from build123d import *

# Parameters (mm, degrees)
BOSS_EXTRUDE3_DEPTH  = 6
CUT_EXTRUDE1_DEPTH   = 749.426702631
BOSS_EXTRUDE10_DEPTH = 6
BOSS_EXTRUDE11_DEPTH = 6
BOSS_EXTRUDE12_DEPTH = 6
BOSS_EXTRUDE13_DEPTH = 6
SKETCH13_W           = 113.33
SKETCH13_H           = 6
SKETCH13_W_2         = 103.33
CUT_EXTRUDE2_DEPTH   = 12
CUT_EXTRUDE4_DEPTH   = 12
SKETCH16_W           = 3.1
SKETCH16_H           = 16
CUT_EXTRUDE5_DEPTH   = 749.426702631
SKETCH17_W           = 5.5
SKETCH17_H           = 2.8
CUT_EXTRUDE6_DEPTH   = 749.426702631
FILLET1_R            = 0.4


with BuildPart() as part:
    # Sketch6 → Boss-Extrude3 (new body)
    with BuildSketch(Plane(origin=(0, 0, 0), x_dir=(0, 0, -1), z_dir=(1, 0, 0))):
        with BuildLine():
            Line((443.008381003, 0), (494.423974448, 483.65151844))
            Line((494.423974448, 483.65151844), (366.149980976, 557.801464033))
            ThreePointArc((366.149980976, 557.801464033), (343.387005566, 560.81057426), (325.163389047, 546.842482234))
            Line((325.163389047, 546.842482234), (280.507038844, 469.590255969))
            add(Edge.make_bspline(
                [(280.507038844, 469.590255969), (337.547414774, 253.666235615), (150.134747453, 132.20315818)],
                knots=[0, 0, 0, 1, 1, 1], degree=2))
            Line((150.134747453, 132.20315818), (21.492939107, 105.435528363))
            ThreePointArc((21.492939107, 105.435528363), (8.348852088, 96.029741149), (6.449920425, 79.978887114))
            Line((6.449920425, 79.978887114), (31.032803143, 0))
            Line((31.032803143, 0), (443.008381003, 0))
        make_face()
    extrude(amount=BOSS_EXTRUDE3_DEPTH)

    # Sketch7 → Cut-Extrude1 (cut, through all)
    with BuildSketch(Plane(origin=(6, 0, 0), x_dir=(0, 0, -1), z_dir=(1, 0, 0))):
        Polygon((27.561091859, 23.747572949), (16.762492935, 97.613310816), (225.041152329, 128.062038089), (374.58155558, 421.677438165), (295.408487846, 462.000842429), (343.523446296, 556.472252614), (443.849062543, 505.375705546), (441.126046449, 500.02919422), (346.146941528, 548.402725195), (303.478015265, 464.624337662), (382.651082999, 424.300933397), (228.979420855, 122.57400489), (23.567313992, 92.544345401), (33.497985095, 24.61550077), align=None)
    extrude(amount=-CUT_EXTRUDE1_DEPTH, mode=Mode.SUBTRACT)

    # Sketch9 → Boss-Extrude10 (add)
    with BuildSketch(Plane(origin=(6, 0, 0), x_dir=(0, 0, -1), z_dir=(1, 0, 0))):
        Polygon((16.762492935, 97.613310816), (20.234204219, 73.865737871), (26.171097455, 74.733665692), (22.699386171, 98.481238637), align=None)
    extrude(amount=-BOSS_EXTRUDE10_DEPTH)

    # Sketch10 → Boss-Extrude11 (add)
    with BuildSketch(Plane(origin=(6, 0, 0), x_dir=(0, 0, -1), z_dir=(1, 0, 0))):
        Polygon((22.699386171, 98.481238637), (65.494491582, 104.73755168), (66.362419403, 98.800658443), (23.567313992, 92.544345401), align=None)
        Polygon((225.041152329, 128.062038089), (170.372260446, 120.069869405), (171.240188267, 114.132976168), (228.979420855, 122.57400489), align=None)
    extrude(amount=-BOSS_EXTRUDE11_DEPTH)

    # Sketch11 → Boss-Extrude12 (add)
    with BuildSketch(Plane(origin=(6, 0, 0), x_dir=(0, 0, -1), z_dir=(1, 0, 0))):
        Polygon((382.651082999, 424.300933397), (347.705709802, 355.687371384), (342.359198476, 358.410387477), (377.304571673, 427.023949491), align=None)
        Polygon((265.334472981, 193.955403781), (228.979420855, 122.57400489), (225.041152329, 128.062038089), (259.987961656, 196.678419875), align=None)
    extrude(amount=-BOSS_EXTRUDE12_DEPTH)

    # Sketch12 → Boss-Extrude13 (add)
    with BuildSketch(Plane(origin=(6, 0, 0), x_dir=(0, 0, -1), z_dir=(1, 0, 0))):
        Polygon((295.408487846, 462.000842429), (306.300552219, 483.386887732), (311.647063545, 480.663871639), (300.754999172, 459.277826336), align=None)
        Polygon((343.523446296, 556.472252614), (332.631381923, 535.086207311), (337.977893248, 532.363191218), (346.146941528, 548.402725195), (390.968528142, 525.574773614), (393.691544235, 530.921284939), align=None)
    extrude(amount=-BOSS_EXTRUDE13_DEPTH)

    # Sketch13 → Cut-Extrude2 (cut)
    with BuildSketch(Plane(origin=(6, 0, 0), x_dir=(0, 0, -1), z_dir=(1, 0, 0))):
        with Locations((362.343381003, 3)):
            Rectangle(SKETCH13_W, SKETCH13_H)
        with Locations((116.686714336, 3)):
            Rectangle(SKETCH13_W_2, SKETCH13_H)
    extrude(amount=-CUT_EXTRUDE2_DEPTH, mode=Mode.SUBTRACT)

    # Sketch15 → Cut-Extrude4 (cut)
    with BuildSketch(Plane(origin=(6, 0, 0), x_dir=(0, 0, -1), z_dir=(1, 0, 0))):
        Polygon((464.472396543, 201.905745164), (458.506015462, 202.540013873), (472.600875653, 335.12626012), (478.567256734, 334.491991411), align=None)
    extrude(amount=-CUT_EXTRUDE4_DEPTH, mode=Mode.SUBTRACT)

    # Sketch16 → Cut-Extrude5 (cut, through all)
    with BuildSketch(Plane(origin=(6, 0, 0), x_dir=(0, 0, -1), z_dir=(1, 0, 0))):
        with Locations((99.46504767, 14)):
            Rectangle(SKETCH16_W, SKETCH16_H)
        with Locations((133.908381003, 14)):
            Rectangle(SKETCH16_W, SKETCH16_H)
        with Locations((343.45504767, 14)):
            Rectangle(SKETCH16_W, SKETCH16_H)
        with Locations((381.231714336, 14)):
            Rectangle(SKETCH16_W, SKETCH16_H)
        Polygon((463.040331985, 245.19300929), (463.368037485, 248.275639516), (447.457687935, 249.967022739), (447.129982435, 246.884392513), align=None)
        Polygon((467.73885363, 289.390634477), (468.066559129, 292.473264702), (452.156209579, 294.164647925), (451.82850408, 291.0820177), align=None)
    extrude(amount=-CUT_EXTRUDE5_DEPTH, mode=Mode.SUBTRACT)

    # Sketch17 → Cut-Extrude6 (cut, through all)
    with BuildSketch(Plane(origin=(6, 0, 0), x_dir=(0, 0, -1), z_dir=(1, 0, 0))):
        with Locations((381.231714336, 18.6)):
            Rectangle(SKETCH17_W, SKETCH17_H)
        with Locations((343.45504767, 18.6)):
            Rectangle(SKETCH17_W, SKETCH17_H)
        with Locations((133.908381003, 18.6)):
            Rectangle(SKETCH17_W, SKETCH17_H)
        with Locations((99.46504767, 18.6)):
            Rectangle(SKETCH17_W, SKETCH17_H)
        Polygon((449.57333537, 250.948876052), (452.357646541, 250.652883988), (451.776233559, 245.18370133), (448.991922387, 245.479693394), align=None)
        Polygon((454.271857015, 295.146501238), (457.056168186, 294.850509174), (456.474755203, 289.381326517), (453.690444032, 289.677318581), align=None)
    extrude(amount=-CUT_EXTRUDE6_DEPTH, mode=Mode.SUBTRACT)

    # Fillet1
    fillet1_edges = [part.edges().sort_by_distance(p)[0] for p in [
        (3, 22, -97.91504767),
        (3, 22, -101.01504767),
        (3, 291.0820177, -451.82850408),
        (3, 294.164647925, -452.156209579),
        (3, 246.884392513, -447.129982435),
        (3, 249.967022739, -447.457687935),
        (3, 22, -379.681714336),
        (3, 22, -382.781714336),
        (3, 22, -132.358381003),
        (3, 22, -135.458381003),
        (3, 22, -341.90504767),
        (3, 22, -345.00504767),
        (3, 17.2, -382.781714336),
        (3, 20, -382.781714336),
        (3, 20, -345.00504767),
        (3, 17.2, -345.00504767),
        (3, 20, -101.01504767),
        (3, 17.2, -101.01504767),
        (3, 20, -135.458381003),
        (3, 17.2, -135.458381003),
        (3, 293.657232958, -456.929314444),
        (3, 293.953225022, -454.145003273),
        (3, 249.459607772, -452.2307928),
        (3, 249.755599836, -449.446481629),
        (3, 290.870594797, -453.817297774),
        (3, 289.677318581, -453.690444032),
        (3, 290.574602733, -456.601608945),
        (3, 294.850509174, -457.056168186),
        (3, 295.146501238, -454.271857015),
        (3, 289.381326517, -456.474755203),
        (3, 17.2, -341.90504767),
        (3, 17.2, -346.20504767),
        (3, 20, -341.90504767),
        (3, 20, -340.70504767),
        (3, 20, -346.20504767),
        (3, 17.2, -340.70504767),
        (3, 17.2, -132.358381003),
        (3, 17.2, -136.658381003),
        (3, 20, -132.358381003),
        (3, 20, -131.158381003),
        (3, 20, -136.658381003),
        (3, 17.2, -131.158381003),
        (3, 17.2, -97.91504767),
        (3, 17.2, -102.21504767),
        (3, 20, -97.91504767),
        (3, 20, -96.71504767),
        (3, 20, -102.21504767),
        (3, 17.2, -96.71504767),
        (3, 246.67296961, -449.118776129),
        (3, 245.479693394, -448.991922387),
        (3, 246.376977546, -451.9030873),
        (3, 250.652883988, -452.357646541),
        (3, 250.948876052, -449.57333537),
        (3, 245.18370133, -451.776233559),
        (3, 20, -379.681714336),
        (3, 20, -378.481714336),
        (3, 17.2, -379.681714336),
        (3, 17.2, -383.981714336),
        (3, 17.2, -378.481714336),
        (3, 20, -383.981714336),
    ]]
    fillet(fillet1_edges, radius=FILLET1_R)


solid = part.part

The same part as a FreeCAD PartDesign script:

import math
import FreeCAD as App
import Part
import Sketcher

V = App.Vector


def edges_at(feature, points):
    """Names of the edges that pass closest to the given points."""
    edges = feature.Shape.Edges
    near = lambda p: min(range(len(edges)), key=lambda i: edges[i].distToShape(Part.Vertex(*p))[0])
    return sorted({f"Edge{near(p) + 1}" for p in points})


def add_polygon(sketch, points):
    """Adds a closed chain of lines whose ends are joined by coincident constraints."""
    first, n = sketch.GeometryCount, len(points)
    for a, b in zip(points, points[1:] + points[:1]):
        sketch.addGeometry(Part.LineSegment(App.Vector(*a, 0), App.Vector(*b, 0)), False)
    for i in range(n):
        sketch.addConstraint(Sketcher.Constraint("Coincident", first + i, 2, first + (i + 1) % n, 1))

doc = App.newDocument("Part")
params = doc.addObject("Spreadsheet::Sheet", "Params")
for row, (alias, value) in enumerate([
    ("sketch1_radius", "30 mm"),
    ("sketch1_radius2", "20 mm"),
    ("pad1_length", "6 mm"),
    ("sketch2_length", "6 mm"),
    ("sketch3_length", "24 mm"),
    ("sketch3_length2", "6 mm"),
    ("pad2_length", "6 mm"),
    ("sketch4_length", "6 mm"),
    ("sketch4_length2", "43.25 mm"),
    ("sketch4_length3", "55.25 mm"),
    ("pad3_length", "6 mm"),
    ("sketch5_length", "77 mm"),
    ("sketch5_length2", "6 mm"),
    ("pad4_length", "6 mm"),
    ("sketch6_length", "24 mm"),
    ("sketch6_length2", "6 mm"),
    ("sketch6_length3", "50.3 mm"),
    ("pad5_length", "6 mm"),
    ("sketch7_width", "6 mm"),
    ("sketch7_height", "113.33 mm"),
    ("sketch7_height2", "103.33 mm"),
    ("pocket2_length", "12 mm"),
    ("sketch8_length", "6 mm"),
    ("pocket3_length", "12 mm"),
    ("sketch9_width", "16 mm"),
    ("sketch9_length", "16 mm"),
    ("sketch9_height", "3.1 mm"),
    ("sketch9_length2", "3.1 mm"),
    ("sketch10_width", "2.8 mm"),
    ("sketch10_height", "5.5 mm"),
    ("sketch10_length", "2.8 mm"),
    ("sketch10_length2", "5.5 mm"),
    ("fillet_radius", "0.4 mm"),
], start=1):
    params.set(f"A{row}", alias)
    params.set(f"B{row}", "=" + value)
    params.setAlias(f"B{row}", alias)

body = doc.addObject("PartDesign::Body", "Body")

sketch1 = body.newObject("Sketcher::SketchObject", "Sketch")
sketch1.AttachmentSupport = (doc.getObject("YZ_Plane"), [""])
sketch1.MapMode = "FlatFace"
sketch1.addGeometry([
    Part.LineSegment(V(0, -443.008381, 0), V(483.651518, -494.423974, 0)),
    Part.LineSegment(V(483.651518, -494.423974, 0), V(557.801464, -366.149981, 0)),
    Part.ArcOfCircle(Part.Circle(V(531.828677, -351.136176, 0), V(0, 0, 1), 30), math.radians(-30.030449), math.radians(59.969551)),
    Part.LineSegment(V(546.842482, -325.163389, 0), V(469.590256, -280.507039, 0)),
    Part.BSplineCurve([V(469.590256, -280.507039, 0), V(253.666236, -337.547415, 0), V(132.203158, -150.134747, 0)], [3, 3], [0, 1], False, 2, [1, 1, 1], False),
    Part.LineSegment(V(132.203158, -150.134747, 0), V(105.435528, -21.492939, 0)),
    Part.ArcOfCircle(Part.Circle(V(85.854925, -25.567247, 0), V(0, 0, 1), 20), math.radians(11.75431), math.radians(107.085709)),
    Part.LineSegment(V(79.978887, -6.44992, 0), V(0, -31.032803, 0)),
    Part.LineSegment(V(0, -31.032803, 0), V(0, -443.008381, 0)),
], False)
sketch1.addConstraint([
    Sketcher.Constraint("Block", 4),
    Sketcher.Constraint("Coincident", 0, 2, 1, 1),
    Sketcher.Constraint("Coincident", 1, 2, 2, 1),
    Sketcher.Constraint("Coincident", 2, 2, 3, 1),
    Sketcher.Constraint("Coincident", 3, 2, 4, 1),
    Sketcher.Constraint("Coincident", 4, 2, 5, 1),
    Sketcher.Constraint("Coincident", 5, 2, 6, 1),
    Sketcher.Constraint("Coincident", 6, 2, 7, 1),
    Sketcher.Constraint("Coincident", 7, 2, 8, 1),
    Sketcher.Constraint("Coincident", 8, 2, 0, 1),
    Sketcher.Constraint("Vertical", 8),
    Sketcher.Constraint("PointOnObject", 7, 2, -2),
    Sketcher.Constraint("Radius", 2, 30.0),
    Sketcher.Constraint("Radius", 6, 20.0),
    Sketcher.Constraint("DistanceY", 0, 2, 2, 3, 143.287799),
    Sketcher.Constraint("DistanceY", 3, 2, 5, 2, 259.0141),
    Sketcher.Constraint("Distance", 0, 486.376762),
    Sketcher.Constraint("Distance", 1, 148.163531),
    Sketcher.Constraint("Distance", 3, 89.230578),
    Sketcher.Constraint("DistanceY", 8, 2, 8, 1, 411.975578),
    Sketcher.Constraint("DistanceX", -1, 1, 0, 2, 483.651518),
    Sketcher.Constraint("DistanceY", 1, 2, -1, 1, 366.149981),
    Sketcher.Constraint("DistanceY", 2, 2, -1, 1, 325.163389),
    Sketcher.Constraint("DistanceX", -1, 1, 5, 2, 105.435528),
    Sketcher.Constraint("DistanceY", 6, 2, -1, 1, 6.44992),
    Sketcher.Constraint("DistanceX", 6, 3, 2, 3, 445.973752),
])
sketch1.setExpression("Constraints[12]", "Params.sketch1_radius")
sketch1.setExpression("Constraints[13]", "Params.sketch1_radius2")
pad1 = body.newObject("PartDesign::Pad", "Pad")
pad1.Profile = sketch1
pad1.setExpression("Length", "Params.pad1_length")

sketch2 = body.newObject("Sketcher::SketchObject", "Sketch001")
sketch2.AttachmentSupport = (doc.getObject("YZ_Plane"), [""])
sketch2.MapMode = "FlatFace"
sketch2.AttachmentOffset = App.Placement(V(0, 0, 6), App.Rotation())
add_polygon(sketch2, [(98, -17), (24, -28), (25, -33), (93, -24), (123, -229), (424, -383), (465, -303), (548, -346), (500, -441), (505, -444), (556, -344), (462, -295), (422, -375), (128, -225)])
sketch2.addConstraint([
    Sketcher.Constraint("Perpendicular", 0, 1),
    Sketcher.Constraint("Perpendicular", 1, 2),
    Sketcher.Constraint("Perpendicular", 2, 3),
    Sketcher.Constraint("Perpendicular", 4, 5),
    Sketcher.Constraint("Perpendicular", 5, 6),
    Sketcher.Constraint("Perpendicular", 6, 7),
    Sketcher.Constraint("Perpendicular", 7, 8),
    Sketcher.Constraint("Perpendicular", 8, 9),
    Sketcher.Constraint("Perpendicular", 9, 10),
    Sketcher.Constraint("Perpendicular", 10, 11),
    Sketcher.Constraint("Perpendicular", 11, 12),
    Sketcher.Constraint("Parallel", 3, 13),
    Sketcher.Constraint("Equal", 1, 8),
    Sketcher.Constraint("Equal", 5, 11),
    Sketcher.Constraint("Distance", 1, 6.0),
    Sketcher.Constraint("Distance", 0, 74.650901),
    Sketcher.Constraint("Distance", 2, 68.650901),
    Sketcher.Constraint("DistanceX", -1, 1, 1, 2, 24.615501),
    Sketcher.Constraint("DistanceY", 5, 2, 2, 2, 279.910701),
    Sketcher.Constraint("DistanceX", 3, 2, 8, 2, 382.801701),
    Sketcher.Constraint("DistanceY", 7, 2, 9, 2, 97.6026),
    Sketcher.Constraint("DistanceX", 11, 2, 5, 2, 42.946899),
    Sketcher.Constraint("DistanceX", 12, 2, 11, 2, 293.6154),
    Sketcher.Constraint("DistanceY", 0, 2, 13, 2, 10.798599),
    Sketcher.Constraint("Distance", 4, 338.606142),
    Sketcher.Constraint("Distance", 6, 94.018378),
    Sketcher.Constraint("Distance", 10, 106.018378),
    Sketcher.Constraint("DistanceY", 0, 2, -1, 1, 27.561092),
])
sketch2.setExpression("Constraints[28]", "Params.sketch2_length")
pocket1 = body.newObject("PartDesign::Pocket", "Pocket")
pocket1.Profile = sketch2
pocket1.Type = "ThroughAll"

sketch3 = body.newObject("Sketcher::SketchObject", "Sketch002")
sketch3.AttachmentSupport = (doc.getObject("YZ_Plane"), [""])
sketch3.MapMode = "FlatFace"
sketch3.AttachmentOffset = App.Placement(V(0, 0, 6), App.Rotation())
add_polygon(sketch3, [(98, -17), (74, -20), (75, -26), (98, -23)])
sketch3.addConstraint([
    Sketcher.Constraint("Perpendicular", 0, 1),
    Sketcher.Constraint("Perpendicular", 1, 2),
    Sketcher.Constraint("Perpendicular", 2, 3),
    Sketcher.Constraint("Distance", 0, 24.0),
    Sketcher.Constraint("Distance", 1, 6.0),
    Sketcher.Constraint("DistanceX", 0, 2, 2, 2, 24.615501),
    Sketcher.Constraint("DistanceX", -1, 1, 2, 2, 98.481239),
    Sketcher.Constraint("DistanceY", 0, 2, -1, 1, 20.234204),
])
sketch3.setExpression("Constraints[7]", "Params.sketch3_length")
sketch3.setExpression("Constraints[8]", "Params.sketch3_length2")
pad2 = body.newObject("PartDesign::Pad", "Pad001")
pad2.Profile = sketch3
pad2.setExpression("Length", "Params.pad2_length")
pad2.Reversed = True

sketch4 = body.newObject("Sketcher::SketchObject", "Sketch003")
sketch4.AttachmentSupport = (doc.getObject("YZ_Plane"), [""])
sketch4.MapMode = "FlatFace"
sketch4.AttachmentOffset = App.Placement(V(0, 0, 6), App.Rotation())
add_polygon(sketch4, [(105, -65), (98, -23), (93, -24), (99, -66)])
add_polygon(sketch4, [(128, -225), (120, -170), (114, -171), (123, -229)])
sketch4.addConstraint([
    Sketcher.Constraint("Perpendicular", 0, 1),
    Sketcher.Constraint("Perpendicular", 1, 2),
    Sketcher.Constraint("Perpendicular", 2, 3),
    Sketcher.Constraint("Perpendicular", 3, 4),
    Sketcher.Constraint("Perpendicular", 4, 5),
    Sketcher.Constraint("Perpendicular", 5, 6),
    Sketcher.Constraint("Equal", 3, 5),
    Sketcher.Constraint("Distance", 1, 6.0),
    Sketcher.Constraint("Distance", 0, 43.25),
    Sketcher.Constraint("Distance", 4, 55.25),
    Sketcher.Constraint("DistanceY", 6, 2, 2, 2, 162.617001),
    Sketcher.Constraint("DistanceX", -1, 1, 0, 2, 98.481239),
    Sketcher.Constraint("DistanceX", -1, 1, 2, 2, 98.800658),
    Sketcher.Constraint("DistanceY", 2, 2, -1, 1, 66.362419),
    Sketcher.Constraint("DistanceX", -1, 1, 4, 2, 120.069869),
    Sketcher.Constraint("DistanceY", 4, 2, -1, 1, 170.37226),
])
sketch4.setExpression("Constraints[15]", "Params.sketch4_length")
sketch4.setExpression("Constraints[16]", "Params.sketch4_length2")
sketch4.setExpression("Constraints[17]", "Params.sketch4_length3")
pad3 = body.newObject("PartDesign::Pad", "Pad002")
pad3.Profile = sketch4
pad3.setExpression("Length", "Params.pad3_length")
pad3.Reversed = True

sketch5 = body.newObject("Sketcher::SketchObject", "Sketch004")
sketch5.AttachmentSupport = (doc.getObject("YZ_Plane"), [""])
sketch5.MapMode = "FlatFace"
sketch5.AttachmentOffset = App.Placement(V(0, 0, 6), App.Rotation())
add_polygon(sketch5, [(356, -348), (424, -383), (427, -377), (358, -342)])
add_polygon(sketch5, [(123, -229), (194, -265), (197, -260), (128, -225)])
sketch5.addConstraint([
    Sketcher.Constraint("Perpendicular", 0, 1),
    Sketcher.Constraint("Perpendicular", 1, 2),
    Sketcher.Constraint("Perpendicular", 2, 3),
    Sketcher.Constraint("Perpendicular", 3, 4),
    Sketcher.Constraint("Perpendicular", 4, 5),
    Sketcher.Constraint("Perpendicular", 5, 6),
    Sketcher.Constraint("Equal", 3, 5),
    Sketcher.Constraint("Distance", 0, 77.0),
    Sketcher.Constraint("Distance", 1, 6.0),
    Sketcher.Constraint("DistanceY", 2, 2, -1, 1, 342.359198),
    Sketcher.Constraint("DistanceY", 1, 2, 4, 2, 111.970099),
    Sketcher.Constraint("DistanceX", 7, 2, 4, 2, 71.381399),
    Sketcher.Constraint("Distance", 4, 80.106142),
    Sketcher.Constraint("DistanceX", -1, 1, 1, 2, 427.023949),
    Sketcher.Constraint("DistanceX", -1, 1, 5, 2, 196.67842),
    Sketcher.Constraint("DistanceX", -1, 1, 6, 2, 128.062038),
])
sketch5.setExpression("Constraints[15]", "Params.sketch5_length")
sketch5.setExpression("Constraints[16]", "Params.sketch5_length2")
pad4 = body.newObject("PartDesign::Pad", "Pad003")
pad4.Profile = sketch5
pad4.setExpression("Length", "Params.pad4_length")
pad4.Reversed = True

sketch6 = body.newObject("Sketcher::SketchObject", "Sketch005")
sketch6.AttachmentSupport = (doc.getObject("YZ_Plane"), [""])
sketch6.MapMode = "FlatFace"
sketch6.AttachmentOffset = App.Placement(V(0, 0, 6), App.Rotation())
add_polygon(sketch6, [(483, -306), (462, -295), (459, -301), (481, -312)])
add_polygon(sketch6, [(556, -344), (535, -333), (532, -338), (548, -346), (526, -391), (531, -394)])
sketch6.addConstraint([
    Sketcher.Constraint("Perpendicular", 0, 1),
    Sketcher.Constraint("Perpendicular", 1, 2),
    Sketcher.Constraint("Perpendicular", 2, 3),
    Sketcher.Constraint("Perpendicular", 3, 4),
    Sketcher.Constraint("Perpendicular", 4, 5),
    Sketcher.Constraint("Perpendicular", 5, 6),
    Sketcher.Constraint("Perpendicular", 6, 7),
    Sketcher.Constraint("Perpendicular", 7, 8),
    Sketcher.Constraint("Perpendicular", 8, 9),
    Sketcher.Constraint("Equal", 2, 4),
    Sketcher.Constraint("Equal", 3, 5),
    Sketcher.Constraint("Equal", 5, 8),
    Sketcher.Constraint("Distance", 0, 24.0),
    Sketcher.Constraint("Distance", 1, 6.0),
    Sketcher.Constraint("Distance", 7, 50.3),
    Sketcher.Constraint("DistanceY", 1, 2, -1, 1, 300.754999),
    Sketcher.Constraint("DistanceX", 1, 2, 6, 2, 89.124899),
    Sketcher.Constraint("DistanceX", 2, 2, 7, 2, 44.910902),
    Sketcher.Constraint("DistanceX", -1, 1, 2, 2, 480.663872),
    Sketcher.Constraint("DistanceY", 4, 2, -1, 1, 332.631382),
])
sketch6.setExpression("Constraints[22]", "Params.sketch6_length")
sketch6.setExpression("Constraints[23]", "Params.sketch6_length2")
sketch6.setExpression("Constraints[24]", "Params.sketch6_length3")
pad5 = body.newObject("PartDesign::Pad", "Pad004")
pad5.Profile = sketch6
pad5.setExpression("Length", "Params.pad5_length")
pad5.Reversed = True

sketch7 = body.newObject("Sketcher::SketchObject", "Sketch006")
sketch7.AttachmentSupport = (doc.getObject("YZ_Plane"), [""])
sketch7.MapMode = "FlatFace"
sketch7.AttachmentOffset = App.Placement(V(0, 0, 6), App.Rotation())
add_polygon(sketch7, [(6, -306), (0, -306), (0, -419), (6, -419)])
add_polygon(sketch7, [(6, -65), (0, -65), (0, -168), (6, -168)])
sketch7.addConstraint([
    Sketcher.Constraint("Horizontal", 0),
    Sketcher.Constraint("Vertical", 1),
    Sketcher.Constraint("Horizontal", 2),
    Sketcher.Constraint("Vertical", 3),
    Sketcher.Constraint("Horizontal", 4),
    Sketcher.Constraint("Vertical", 5),
    Sketcher.Constraint("Horizontal", 6),
    Sketcher.Constraint("Vertical", 7),
    Sketcher.Constraint("PointOnObject", 0, 2, -2),
    Sketcher.Constraint("PointOnObject", 4, 2, -2),
    Sketcher.Constraint("Vertical", 3, 2, 6, 2),
    Sketcher.Constraint("DistanceX", 0, 2, 0, 1, 6.0),
    Sketcher.Constraint("DistanceY", 1, 2, 1, 1, 113.33),
    Sketcher.Constraint("DistanceY", 5, 2, 5, 1, 103.33),
    Sketcher.Constraint("DistanceY", 0, 2, -1, 1, 305.678381),
    Sketcher.Constraint("DistanceY", 4, 2, -1, 1, 65.021714),
])
sketch7.setExpression("Constraints[19]", "Params.sketch7_width")
sketch7.setExpression("Constraints[20]", "Params.sketch7_height")
sketch7.setExpression("Constraints[21]", "Params.sketch7_height2")
pocket2 = body.newObject("PartDesign::Pocket", "Pocket001")
pocket2.Profile = sketch7
pocket2.setExpression("Length", "Params.pocket2_length")

sketch8 = body.newObject("Sketcher::SketchObject", "Sketch007")
sketch8.AttachmentSupport = (doc.getObject("YZ_Plane"), [""])
sketch8.MapMode = "FlatFace"
sketch8.AttachmentOffset = App.Placement(V(0, 0, 6), App.Rotation())
add_polygon(sketch8, [(202.540014, -458.506015), (201.905745, -464.472397), (334.491991, -478.567257), (335.12626, -472.600876)])
sketch8.addConstraint([
    Sketcher.Constraint("Perpendicular", 0, 1),
    Sketcher.Constraint("Perpendicular", 1, 2),
    Sketcher.Constraint("Perpendicular", 2, 3),
    Sketcher.Constraint("Distance", 0, 6.0),
    Sketcher.Constraint("DistanceX", -1, 1, 1, 2, 334.491991),
    Sketcher.Constraint("DistanceX", -1, 1, 2, 2, 335.12626),
    Sketcher.Constraint("DistanceY", 1, 2, 0, 2, 14.09486),
    Sketcher.Constraint("DistanceY", 0, 2, -1, 1, 464.472397),
])
sketch8.setExpression("Constraints[7]", "Params.sketch8_length")
pocket3 = body.newObject("PartDesign::Pocket", "Pocket002")
pocket3.Profile = sketch8
pocket3.setExpression("Length", "Params.pocket3_length")

sketch9 = body.newObject("Sketcher::SketchObject", "Sketch008")
sketch9.AttachmentSupport = (doc.getObject("YZ_Plane"), [""])
sketch9.MapMode = "FlatFace"
sketch9.AttachmentOffset = App.Placement(V(0, 0, 6), App.Rotation())
add_polygon(sketch9, [(22, -97.915048), (6, -97.915048), (6, -101.015048), (22, -101.015048)])
add_polygon(sketch9, [(22, -132.358381), (6, -132.358381), (6, -135.458381), (22, -135.458381)])
add_polygon(sketch9, [(22, -341.905048), (6, -341.905048), (6, -345.005048), (22, -345.005048)])
add_polygon(sketch9, [(22, -379.681714), (6, -379.681714), (6, -382.781714), (22, -382.781714)])
add_polygon(sketch9, [(245.193009, -463.040332), (248.27564, -463.368037), (249.967023, -447.457688), (246.884393, -447.129982)])
add_polygon(sketch9, [(289.390634, -467.738854), (292.473265, -468.066559), (294.164648, -452.15621), (291.082018, -451.828504)])
sketch9.addConstraint([
    Sketcher.Constraint("Horizontal", 0),
    Sketcher.Constraint("Vertical", 1),
    Sketcher.Constraint("Horizontal", 2),
    Sketcher.Constraint("Vertical", 3),
    Sketcher.Constraint("Horizontal", 4),
    Sketcher.Constraint("Vertical", 5),
    Sketcher.Constraint("Horizontal", 6),
    Sketcher.Constraint("Vertical", 7),
    Sketcher.Constraint("Horizontal", 8),
    Sketcher.Constraint("Vertical", 9),
    Sketcher.Constraint("Horizontal", 10),
    Sketcher.Constraint("Vertical", 11),
    Sketcher.Constraint("Horizontal", 12),
    Sketcher.Constraint("Vertical", 13),
    Sketcher.Constraint("Horizontal", 14),
    Sketcher.Constraint("Vertical", 15),
    Sketcher.Constraint("Perpendicular", 16, 17),
    Sketcher.Constraint("Perpendicular", 17, 18),
    Sketcher.Constraint("Perpendicular", 18, 19),
    Sketcher.Constraint("Perpendicular", 19, 20),
    Sketcher.Constraint("Perpendicular", 20, 21),
    Sketcher.Constraint("Perpendicular", 21, 22),
    Sketcher.Constraint("Perpendicular", 22, 23),
    Sketcher.Constraint("Vertical", 1, 2, 4, 2),
    Sketcher.Constraint("Vertical", 3, 2, 6, 2),
    Sketcher.Constraint("Vertical", 5, 2, 8, 2),
    Sketcher.Constraint("Vertical", 7, 2, 10, 2),
    Sketcher.Constraint("Vertical", 9, 2, 12, 2),
    Sketcher.Constraint("Vertical", 11, 2, 14, 2),
    Sketcher.Constraint("Equal", 3, 5),
    Sketcher.Constraint("Equal", 7, 9),
    Sketcher.Constraint("Equal", 11, 13),
    Sketcher.Constraint("Equal", 18, 20),
    Sketcher.Constraint("Equal", 19, 21),
    Sketcher.Constraint("DistanceX", 0, 2, 0, 1, 16.0),
    Sketcher.Constraint("Distance", 17, 16.0),
    Sketcher.Constraint("DistanceY", 1, 2, 1, 1, 3.1),
    Sketcher.Constraint("DistanceX", -1, 1, 0, 2, 6.0),
    Sketcher.Constraint("Distance", 16, 3.1),
    Sketcher.Constraint("DistanceY", 8, 2, 1, 2, 240.89),
    Sketcher.Constraint("DistanceY", 4, 2, -1, 1, 132.358381),
    Sketcher.Constraint("DistanceX", -1, 1, 16, 2, 248.27564),
    Sketcher.Constraint("DistanceX", -1, 1, 19, 2, 245.193009),
    Sketcher.Constraint("DistanceY", 19, 2, -1, 1, 463.040332),
    Sketcher.Constraint("DistanceY", 20, 2, -1, 1, 468.066559),
    Sketcher.Constraint("DistanceY", 16, 2, 10, 2, 118.36299),
    Sketcher.Constraint("DistanceY", 18, 2, 14, 2, 64.348268),
    Sketcher.Constraint("DistanceX", 17, 2, 20, 2, 42.506242),
])
sketch9.setExpression("Constraints[58]", "Params.sketch9_width")
sketch9.setExpression("Constraints[59]", "Params.sketch9_length")
sketch9.setExpression("Constraints[60]", "Params.sketch9_height")
sketch9.setExpression("Constraints[62]", "Params.sketch9_length2")
pocket4 = body.newObject("PartDesign::Pocket", "Pocket003")
pocket4.Profile = sketch9
pocket4.Type = "ThroughAll"

sketch10 = body.newObject("Sketcher::SketchObject", "Sketch009")
sketch10.AttachmentSupport = (doc.getObject("YZ_Plane"), [""])
sketch10.MapMode = "FlatFace"
sketch10.AttachmentOffset = App.Placement(V(0, 0, 6), App.Rotation())
add_polygon(sketch10, [(20, -378.5), (17.2, -378.5), (17.2, -384), (20, -384)])
add_polygon(sketch10, [(20, -340.7), (17.2, -340.7), (17.2, -346.2), (20, -346.2)])
add_polygon(sketch10, [(20, -131.2), (17.2, -131.2), (17.2, -136.7), (20, -136.7)])
add_polygon(sketch10, [(20, -96.7), (17.2, -96.7), (17.2, -102.2), (20, -102.2)])
add_polygon(sketch10, [(250.7, -452.4), (250.9, -449.6), (245.5, -449), (245.2, -451.8)])
add_polygon(sketch10, [(294.9, -457.1), (295.1, -454.3), (289.7, -453.7), (289.4, -456.5)])
sketch10.addConstraint([
    Sketcher.Constraint("Horizontal", 0),
    Sketcher.Constraint("Vertical", 1),
    Sketcher.Constraint("Horizontal", 2),
    Sketcher.Constraint("Vertical", 3),
    Sketcher.Constraint("Horizontal", 4),
    Sketcher.Constraint("Vertical", 5),
    Sketcher.Constraint("Horizontal", 6),
    Sketcher.Constraint("Vertical", 7),
    Sketcher.Constraint("Horizontal", 8),
    Sketcher.Constraint("Vertical", 9),
    Sketcher.Constraint("Horizontal", 10),
    Sketcher.Constraint("Vertical", 11),
    Sketcher.Constraint("Horizontal", 12),
    Sketcher.Constraint("Vertical", 13),
    Sketcher.Constraint("Horizontal", 14),
    Sketcher.Constraint("Vertical", 15),
    Sketcher.Constraint("Perpendicular", 16, 17),
    Sketcher.Constraint("Perpendicular", 17, 18),
    Sketcher.Constraint("Perpendicular", 18, 19),
    Sketcher.Constraint("Perpendicular", 19, 20),
    Sketcher.Constraint("Perpendicular", 20, 21),
    Sketcher.Constraint("Perpendicular", 21, 22),
    Sketcher.Constraint("Perpendicular", 22, 23),
    Sketcher.Constraint("Vertical", 1, 2, 4, 2),
    Sketcher.Constraint("Vertical", 3, 2, 6, 2),
    Sketcher.Constraint("Vertical", 5, 2, 8, 2),
    Sketcher.Constraint("Vertical", 7, 2, 10, 2),
    Sketcher.Constraint("Vertical", 9, 2, 12, 2),
    Sketcher.Constraint("Vertical", 11, 2, 14, 2),
    Sketcher.Constraint("Equal", 3, 5),
    Sketcher.Constraint("Equal", 7, 9),
    Sketcher.Constraint("Equal", 11, 13),
    Sketcher.Constraint("Equal", 18, 20),
    Sketcher.Constraint("Equal", 19, 21),
    Sketcher.Constraint("DistanceX", 0, 2, 0, 1, 2.8),
    Sketcher.Constraint("DistanceY", 1, 2, 1, 1, 5.5),
    Sketcher.Constraint("DistanceX", -1, 1, 2, 2, 20.0),
    Sketcher.Constraint("Distance", 16, 2.8),
    Sketcher.Constraint("Distance", 17, 5.5),
    Sketcher.Constraint("DistanceY", 4, 2, 12, 2, 243.99),
    Sketcher.Constraint("DistanceX", -1, 1, 18, 2, 245.183701),
    Sketcher.Constraint("DistanceX", -1, 1, 20, 2, 295.146501),
    Sketcher.Constraint("DistanceY", 18, 2, 16, 2, 2.202898),
    Sketcher.Constraint("DistanceY", 8, 2, -1, 1, 131.158381),
    Sketcher.Constraint("DistanceY", 23, 2, -1, 1, 457.056168),
    Sketcher.Constraint("DistanceY", 16, 2, 2, 2, 65.591621),
    Sketcher.Constraint("DistanceY", 20, 2, 16, 2, 4.698522),
    Sketcher.Constraint("DistanceY", 4, 2, -1, 1, 340.705048),
])
sketch10.setExpression("Constraints[58]", "Params.sketch10_width")
sketch10.setExpression("Constraints[59]", "Params.sketch10_height")
sketch10.setExpression("Constraints[61]", "Params.sketch10_length")
sketch10.setExpression("Constraints[62]", "Params.sketch10_length2")
pocket5 = body.newObject("PartDesign::Pocket", "Pocket004")
pocket5.Profile = sketch10
pocket5.Type = "ThroughAll"
doc.recompute()

fillet = body.newObject("PartDesign::Fillet", "Fillet")
fillet.Base = (pocket5, edges_at(pocket5, [
    (3, 22, -97.915),
    (3, 22, -101.015),
    (3, 291.082, -451.829),
    (3, 294.165, -452.156),
    (3, 246.884, -447.13),
    (3, 249.967, -447.458),
    (3, 22, -379.682),
    (3, 22, -382.782),
    (3, 22, -132.358),
    (3, 22, -135.458),
    (3, 22, -341.905),
    (3, 22, -345.005),
    (3, 17.2, -382.782),
    (3, 20, -382.782),
    (3, 20, -345.005),
    (3, 17.2, -345.005),
    (3, 20, -101.015),
    (3, 17.2, -101.015),
    (3, 20, -135.458),
    (3, 17.2, -135.458),
    (3, 293.657, -456.929),
    (3, 293.953, -454.145),
    (3, 249.46, -452.231),
    (3, 249.756, -449.446),
    (3, 290.871, -453.817),
    (3, 289.677, -453.69),
    (3, 290.575, -456.602),
    (3, 294.851, -457.056),
    (3, 295.147, -454.272),
    (3, 289.381, -456.475),
    (3, 17.2, -341.905),
    (3, 17.2, -346.205),
    (3, 20, -341.905),
    (3, 20, -340.705),
    (3, 20, -346.205),
    (3, 17.2, -340.705),
    (3, 17.2, -132.358),
    (3, 17.2, -136.658),
    (3, 20, -132.358),
    (3, 20, -131.158),
    (3, 20, -136.658),
    (3, 17.2, -131.158),
    (3, 17.2, -97.915),
    (3, 17.2, -102.215),
    (3, 20, -97.915),
    (3, 20, -96.715),
    (3, 20, -102.215),
    (3, 17.2, -96.715),
    (3, 246.673, -449.119),
    (3, 245.48, -448.992),
    (3, 246.377, -451.903),
    (3, 250.653, -452.358),
    (3, 250.949, -449.573),
    (3, 245.184, -451.776),
    (3, 20, -379.682),
    (3, 20, -378.482),
    (3, 17.2, -379.682),
    (3, 17.2, -383.982),
    (3, 17.2, -378.482),
    (3, 20, -383.982),
]))
fillet.setExpression("Radius", "Params.fillet_radius")

doc.recompute()
